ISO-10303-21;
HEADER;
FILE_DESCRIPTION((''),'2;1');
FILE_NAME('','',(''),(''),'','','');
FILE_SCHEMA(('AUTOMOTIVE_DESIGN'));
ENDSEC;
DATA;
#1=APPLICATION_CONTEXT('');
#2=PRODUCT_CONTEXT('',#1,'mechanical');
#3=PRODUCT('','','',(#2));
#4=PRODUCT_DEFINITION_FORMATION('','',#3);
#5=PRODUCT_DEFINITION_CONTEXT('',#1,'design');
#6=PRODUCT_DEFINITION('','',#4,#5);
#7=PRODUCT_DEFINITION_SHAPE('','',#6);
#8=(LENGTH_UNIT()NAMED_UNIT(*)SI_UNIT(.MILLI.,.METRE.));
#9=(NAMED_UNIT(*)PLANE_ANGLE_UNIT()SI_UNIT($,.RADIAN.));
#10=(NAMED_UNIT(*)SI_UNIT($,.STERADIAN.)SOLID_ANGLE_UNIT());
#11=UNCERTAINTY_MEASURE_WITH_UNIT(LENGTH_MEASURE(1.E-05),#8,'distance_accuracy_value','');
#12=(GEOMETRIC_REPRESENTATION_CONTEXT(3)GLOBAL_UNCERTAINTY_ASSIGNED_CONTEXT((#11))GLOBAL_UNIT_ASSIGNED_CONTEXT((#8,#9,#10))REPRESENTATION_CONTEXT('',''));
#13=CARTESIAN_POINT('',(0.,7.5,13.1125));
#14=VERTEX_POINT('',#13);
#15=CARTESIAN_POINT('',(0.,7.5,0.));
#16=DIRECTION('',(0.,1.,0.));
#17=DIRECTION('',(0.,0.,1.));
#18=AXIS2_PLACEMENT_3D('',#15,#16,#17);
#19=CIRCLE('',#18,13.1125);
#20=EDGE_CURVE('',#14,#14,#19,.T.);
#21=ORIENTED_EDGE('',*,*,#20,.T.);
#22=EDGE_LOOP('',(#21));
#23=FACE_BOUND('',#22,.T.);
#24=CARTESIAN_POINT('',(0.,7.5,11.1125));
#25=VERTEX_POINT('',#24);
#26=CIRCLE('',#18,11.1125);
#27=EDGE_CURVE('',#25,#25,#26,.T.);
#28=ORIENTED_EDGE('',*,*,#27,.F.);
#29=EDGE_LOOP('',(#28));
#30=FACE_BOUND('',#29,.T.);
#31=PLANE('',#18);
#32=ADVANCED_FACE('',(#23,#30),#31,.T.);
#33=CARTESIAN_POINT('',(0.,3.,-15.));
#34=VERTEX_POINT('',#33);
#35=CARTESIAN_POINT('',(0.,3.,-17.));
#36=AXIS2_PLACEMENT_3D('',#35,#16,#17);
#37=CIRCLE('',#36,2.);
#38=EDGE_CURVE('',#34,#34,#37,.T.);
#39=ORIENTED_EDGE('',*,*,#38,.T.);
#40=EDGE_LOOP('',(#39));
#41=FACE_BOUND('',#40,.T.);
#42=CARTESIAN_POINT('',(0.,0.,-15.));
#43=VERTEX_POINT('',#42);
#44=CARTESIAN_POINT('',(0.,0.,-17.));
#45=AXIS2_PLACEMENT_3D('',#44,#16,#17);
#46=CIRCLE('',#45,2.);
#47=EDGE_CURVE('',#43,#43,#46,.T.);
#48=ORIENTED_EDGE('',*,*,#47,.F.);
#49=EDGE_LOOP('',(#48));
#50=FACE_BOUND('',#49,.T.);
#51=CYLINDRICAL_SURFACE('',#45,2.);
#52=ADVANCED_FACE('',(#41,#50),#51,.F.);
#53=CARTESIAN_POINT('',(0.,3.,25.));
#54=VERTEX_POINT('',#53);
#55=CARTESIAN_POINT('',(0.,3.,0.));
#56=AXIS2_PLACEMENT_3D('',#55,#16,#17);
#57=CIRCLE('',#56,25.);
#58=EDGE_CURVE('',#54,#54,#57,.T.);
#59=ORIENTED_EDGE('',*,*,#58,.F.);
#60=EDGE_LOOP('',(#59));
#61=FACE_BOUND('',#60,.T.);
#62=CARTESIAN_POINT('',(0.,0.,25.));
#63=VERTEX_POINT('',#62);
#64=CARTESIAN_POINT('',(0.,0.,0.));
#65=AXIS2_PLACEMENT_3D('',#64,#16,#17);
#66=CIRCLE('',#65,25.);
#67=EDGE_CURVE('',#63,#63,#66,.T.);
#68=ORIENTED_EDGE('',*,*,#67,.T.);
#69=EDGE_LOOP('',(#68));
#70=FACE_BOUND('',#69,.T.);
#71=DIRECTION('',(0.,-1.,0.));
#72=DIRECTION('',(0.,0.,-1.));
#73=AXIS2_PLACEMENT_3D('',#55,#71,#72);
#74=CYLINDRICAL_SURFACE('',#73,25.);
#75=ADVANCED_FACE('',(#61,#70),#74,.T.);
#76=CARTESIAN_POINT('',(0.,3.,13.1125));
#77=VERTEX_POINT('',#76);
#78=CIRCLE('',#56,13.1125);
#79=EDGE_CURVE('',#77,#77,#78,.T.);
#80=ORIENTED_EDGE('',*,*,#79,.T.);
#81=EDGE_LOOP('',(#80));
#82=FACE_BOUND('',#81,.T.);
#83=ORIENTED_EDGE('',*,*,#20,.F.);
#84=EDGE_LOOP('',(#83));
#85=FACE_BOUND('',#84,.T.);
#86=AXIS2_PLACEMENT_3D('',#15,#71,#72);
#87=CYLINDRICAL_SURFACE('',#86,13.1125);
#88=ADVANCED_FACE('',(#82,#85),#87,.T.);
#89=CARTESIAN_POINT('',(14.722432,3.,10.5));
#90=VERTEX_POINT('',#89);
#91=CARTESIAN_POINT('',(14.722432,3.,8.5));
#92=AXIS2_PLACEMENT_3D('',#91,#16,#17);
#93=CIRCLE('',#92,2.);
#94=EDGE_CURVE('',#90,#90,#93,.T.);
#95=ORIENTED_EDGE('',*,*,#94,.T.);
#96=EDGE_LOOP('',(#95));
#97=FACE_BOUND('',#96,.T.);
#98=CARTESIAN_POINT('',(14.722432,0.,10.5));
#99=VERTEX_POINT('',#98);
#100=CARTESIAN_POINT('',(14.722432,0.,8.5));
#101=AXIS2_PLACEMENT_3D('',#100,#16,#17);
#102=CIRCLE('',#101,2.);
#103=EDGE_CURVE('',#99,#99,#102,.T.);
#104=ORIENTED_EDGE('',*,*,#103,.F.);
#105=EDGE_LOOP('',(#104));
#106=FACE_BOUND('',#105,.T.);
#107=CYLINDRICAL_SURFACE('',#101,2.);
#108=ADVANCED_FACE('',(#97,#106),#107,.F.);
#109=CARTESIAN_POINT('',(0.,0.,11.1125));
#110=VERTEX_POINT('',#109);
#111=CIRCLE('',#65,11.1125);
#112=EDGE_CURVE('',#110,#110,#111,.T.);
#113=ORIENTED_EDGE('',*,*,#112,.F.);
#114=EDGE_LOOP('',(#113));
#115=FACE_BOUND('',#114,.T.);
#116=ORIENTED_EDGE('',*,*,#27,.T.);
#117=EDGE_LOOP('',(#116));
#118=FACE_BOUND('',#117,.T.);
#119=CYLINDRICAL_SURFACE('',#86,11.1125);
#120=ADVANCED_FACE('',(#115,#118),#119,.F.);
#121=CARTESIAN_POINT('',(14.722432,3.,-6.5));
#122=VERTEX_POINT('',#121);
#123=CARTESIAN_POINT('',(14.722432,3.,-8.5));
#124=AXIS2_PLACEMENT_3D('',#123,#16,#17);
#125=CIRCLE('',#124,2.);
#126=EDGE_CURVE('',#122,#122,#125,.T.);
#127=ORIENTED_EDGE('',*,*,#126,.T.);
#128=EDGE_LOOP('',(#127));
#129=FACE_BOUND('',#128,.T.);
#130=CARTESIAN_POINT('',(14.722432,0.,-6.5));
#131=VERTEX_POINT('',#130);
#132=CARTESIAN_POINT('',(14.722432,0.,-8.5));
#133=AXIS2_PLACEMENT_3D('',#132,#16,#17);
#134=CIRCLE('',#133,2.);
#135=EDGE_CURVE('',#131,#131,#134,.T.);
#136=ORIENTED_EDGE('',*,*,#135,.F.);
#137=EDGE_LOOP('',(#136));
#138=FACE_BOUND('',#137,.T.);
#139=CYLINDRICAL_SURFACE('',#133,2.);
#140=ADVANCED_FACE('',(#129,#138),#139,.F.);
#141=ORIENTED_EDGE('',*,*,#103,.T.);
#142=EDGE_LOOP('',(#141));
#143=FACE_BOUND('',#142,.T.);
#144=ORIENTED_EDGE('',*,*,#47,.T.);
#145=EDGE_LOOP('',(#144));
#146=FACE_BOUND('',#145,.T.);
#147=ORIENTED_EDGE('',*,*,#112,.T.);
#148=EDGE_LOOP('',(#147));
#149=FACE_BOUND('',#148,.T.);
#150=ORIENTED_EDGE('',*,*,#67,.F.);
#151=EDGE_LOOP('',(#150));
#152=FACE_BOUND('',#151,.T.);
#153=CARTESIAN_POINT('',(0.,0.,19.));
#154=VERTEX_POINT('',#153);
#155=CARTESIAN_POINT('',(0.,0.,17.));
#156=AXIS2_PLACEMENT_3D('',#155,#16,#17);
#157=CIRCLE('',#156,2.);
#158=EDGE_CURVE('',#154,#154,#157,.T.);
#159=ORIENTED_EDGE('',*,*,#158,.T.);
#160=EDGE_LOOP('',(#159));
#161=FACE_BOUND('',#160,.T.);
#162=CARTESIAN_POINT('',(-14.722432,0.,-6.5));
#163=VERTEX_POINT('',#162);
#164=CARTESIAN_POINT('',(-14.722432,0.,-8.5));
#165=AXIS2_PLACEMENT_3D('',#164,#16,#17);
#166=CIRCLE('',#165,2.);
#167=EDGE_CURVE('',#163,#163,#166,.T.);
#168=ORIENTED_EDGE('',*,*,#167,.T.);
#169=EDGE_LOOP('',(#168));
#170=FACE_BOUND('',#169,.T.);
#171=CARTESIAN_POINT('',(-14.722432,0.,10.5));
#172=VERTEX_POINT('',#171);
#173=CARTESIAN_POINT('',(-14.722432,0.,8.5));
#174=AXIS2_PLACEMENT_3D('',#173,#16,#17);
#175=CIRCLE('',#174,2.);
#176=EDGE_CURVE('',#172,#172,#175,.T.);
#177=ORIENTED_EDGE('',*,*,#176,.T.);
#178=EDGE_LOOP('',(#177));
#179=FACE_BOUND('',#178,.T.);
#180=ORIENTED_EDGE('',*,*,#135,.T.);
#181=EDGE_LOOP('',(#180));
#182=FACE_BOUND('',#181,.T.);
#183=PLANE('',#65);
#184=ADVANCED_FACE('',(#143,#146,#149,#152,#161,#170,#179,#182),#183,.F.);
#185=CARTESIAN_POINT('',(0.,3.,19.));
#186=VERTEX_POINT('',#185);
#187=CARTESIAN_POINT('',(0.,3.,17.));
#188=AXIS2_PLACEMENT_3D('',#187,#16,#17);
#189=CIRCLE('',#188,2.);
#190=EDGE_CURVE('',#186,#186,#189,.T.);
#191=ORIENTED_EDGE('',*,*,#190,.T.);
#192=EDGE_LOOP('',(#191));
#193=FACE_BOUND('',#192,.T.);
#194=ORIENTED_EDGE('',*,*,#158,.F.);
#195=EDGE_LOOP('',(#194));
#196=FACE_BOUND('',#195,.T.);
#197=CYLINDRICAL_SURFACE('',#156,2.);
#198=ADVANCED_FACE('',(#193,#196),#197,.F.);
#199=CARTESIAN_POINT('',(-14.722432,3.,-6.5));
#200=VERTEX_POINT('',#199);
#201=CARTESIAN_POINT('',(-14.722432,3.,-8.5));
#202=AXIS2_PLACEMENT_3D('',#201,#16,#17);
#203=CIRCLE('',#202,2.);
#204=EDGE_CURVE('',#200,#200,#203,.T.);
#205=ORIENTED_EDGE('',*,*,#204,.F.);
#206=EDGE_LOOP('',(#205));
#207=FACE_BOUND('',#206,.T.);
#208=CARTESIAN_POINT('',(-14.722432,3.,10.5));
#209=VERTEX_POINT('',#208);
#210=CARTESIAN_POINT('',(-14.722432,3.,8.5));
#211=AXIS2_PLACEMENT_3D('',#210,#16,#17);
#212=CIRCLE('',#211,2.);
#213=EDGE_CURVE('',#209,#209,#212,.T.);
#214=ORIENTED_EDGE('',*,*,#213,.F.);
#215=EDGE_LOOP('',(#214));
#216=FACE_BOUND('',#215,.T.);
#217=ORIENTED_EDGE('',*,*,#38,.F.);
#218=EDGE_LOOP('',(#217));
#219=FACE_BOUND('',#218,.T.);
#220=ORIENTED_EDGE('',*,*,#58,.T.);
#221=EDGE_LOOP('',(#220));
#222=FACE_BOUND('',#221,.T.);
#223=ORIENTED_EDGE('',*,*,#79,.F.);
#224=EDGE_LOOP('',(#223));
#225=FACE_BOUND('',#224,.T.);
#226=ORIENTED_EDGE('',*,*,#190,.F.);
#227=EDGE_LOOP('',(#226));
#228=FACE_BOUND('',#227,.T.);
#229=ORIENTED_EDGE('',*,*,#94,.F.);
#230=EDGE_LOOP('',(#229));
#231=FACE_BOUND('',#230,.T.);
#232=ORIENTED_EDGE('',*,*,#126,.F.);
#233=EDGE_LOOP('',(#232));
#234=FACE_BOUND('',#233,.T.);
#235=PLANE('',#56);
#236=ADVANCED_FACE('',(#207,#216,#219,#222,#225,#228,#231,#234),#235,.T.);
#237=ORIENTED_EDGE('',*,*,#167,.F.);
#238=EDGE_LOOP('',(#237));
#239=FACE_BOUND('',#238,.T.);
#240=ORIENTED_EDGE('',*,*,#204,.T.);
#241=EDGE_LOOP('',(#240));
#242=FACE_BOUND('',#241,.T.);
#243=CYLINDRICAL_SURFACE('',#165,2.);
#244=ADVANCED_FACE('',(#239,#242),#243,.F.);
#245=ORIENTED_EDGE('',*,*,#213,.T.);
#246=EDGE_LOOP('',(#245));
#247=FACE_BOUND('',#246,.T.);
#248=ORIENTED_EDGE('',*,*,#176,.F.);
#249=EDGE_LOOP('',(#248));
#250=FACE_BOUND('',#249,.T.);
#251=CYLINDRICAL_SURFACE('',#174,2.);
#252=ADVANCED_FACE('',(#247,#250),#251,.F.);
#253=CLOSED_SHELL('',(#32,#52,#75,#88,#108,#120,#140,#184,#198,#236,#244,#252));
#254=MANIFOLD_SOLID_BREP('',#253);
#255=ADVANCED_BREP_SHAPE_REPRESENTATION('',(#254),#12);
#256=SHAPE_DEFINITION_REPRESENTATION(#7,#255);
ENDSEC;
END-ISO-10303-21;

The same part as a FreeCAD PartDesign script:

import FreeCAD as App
import Part
import Sketcher

V = App.Vector

doc = App.newDocument("Part")
body = doc.addObject("PartDesign::Body", "Body")

# Sketch on XZ plane
sketch1 = body.newObject("Sketcher::SketchObject", "Sketch")
sketch1.AttachmentSupport = (doc.getObject("XZ_Plane"), [""])
sketch1.MapMode = "FlatFace"
sketch1.addGeometry(Part.Circle(V(0, 0, 0), V(0, 0, 1), 25), False)
sketch1.addGeometry(Part.Circle(V(0, 0, 0), V(0, 0, 1), 4.7625), False)
sketch1.addConstraint(Sketcher.Constraint("Coincident", 0, 3, -1, 1))
sketch1.addConstraint(Sketcher.Constraint("Coincident", 1, 3, -1, 1))
sketch1.addConstraint(Sketcher.Constraint("Diameter", 0, 50.0))
sketch1.addConstraint(Sketcher.Constraint("Diameter", 1, 9.525))
pad1 = body.newObject("PartDesign::Pad", "Pad")
pad1.Profile = sketch1
pad1.Length = 3
pad1.Reversed = True

# Sketch on XZ plane
sketch2 = body.newObject("Sketcher::SketchObject", "Sketch001")
sketch2.AttachmentSupport = (doc.getObject("XZ_Plane"), [""])
sketch2.MapMode = "FlatFace"
sketch2.AttachmentOffset = App.Placement(V(0, 0, -3), App.Rotation())
sketch2.addGeometry(Part.Circle(V(0, -17, 0), V(0, 0, 1), 2), False)
sketch2.addGeometry(Part.Circle(V(14.722432, -8.5, 0), V(0, 0, 1), 2), False)
sketch2.addGeometry(Part.Circle(V(14.722432, 8.5, 0), V(0, 0, 1), 2), False)
sketch2.addGeometry(Part.Circle(V(0, 17, 0), V(0, 0, 1), 2), False)
sketch2.addGeometry(Part.Circle(V(-14.722432, 8.5, 0), V(0, 0, 1), 2), False)
sketch2.addGeometry(Part.Circle(V(-14.722432, -8.5, 0), V(0, 0, 1), 2), False)
sketch2.addConstraint(Sketcher.Constraint("Equal", 0, 1))
sketch2.addConstraint(Sketcher.Constraint("Equal", 1, 2))
sketch2.addConstraint(Sketcher.Constraint("Equal", 2, 3))
sketch2.addConstraint(Sketcher.Constraint("Equal", 3, 4))
sketch2.addConstraint(Sketcher.Constraint("Equal", 4, 5))
sketch2.addConstraint(Sketcher.Constraint("Symmetric", 0, 3, 3, 3, -1, 1))
sketch2.addConstraint(Sketcher.Constraint("Symmetric", 1, 3, 4, 3, -1, 1))
sketch2.addConstraint(Sketcher.Constraint("Symmetric", 2, 3, 5, 3, -1, 1))
sketch2.addConstraint(Sketcher.Constraint("Symmetric", 2, 3, 4, 3, -2))
sketch2.addConstraint(Sketcher.Constraint("PointOnObject", 0, 3, -2))
sketch2.addConstraint(Sketcher.Constraint("Diameter", 0, 4.0))
sketch2.addConstraint(Sketcher.Constraint("DistanceY", 0, 3, -1, 1, 17.0))
sketch2.addConstraint(Sketcher.Constraint("DistanceY", 1, 3, 2, 3, 17.0))
sketch2.addConstraint(Sketcher.Constraint("DistanceX", -1, 1, 1, 3, 14.722432))
pocket1 = body.newObject("PartDesign::Pocket", "Pocket")
pocket1.Profile = sketch2
pocket1.Type = "ThroughAll"
pocket1.Reversed = True

# Sketch on XZ plane
sketch3 = body.newObject("Sketcher::SketchObject", "Sketch002")
sketch3.AttachmentSupport = (doc.getObject("XZ_Plane"), [""])
sketch3.MapMode = "FlatFace"
sketch3.AttachmentOffset = App.Placement(V(0, 0, -3), App.Rotation())
sketch3.addGeometry(Part.Circle(V(0, 0, 0), V(0, 0, 1), 13.1125), False)
sketch3.addGeometry(Part.Circle(V(0, 0, 0), V(0, 0, 1), 11.1125), False)
sketch3.addConstraint(Sketcher.Constraint("Coincident", 0, 3, -1, 1))
sketch3.addConstraint(Sketcher.Constraint("Coincident", 1, 3, -1, 1))
sketch3.addConstraint(Sketcher.Constraint("Diameter", 0, 26.225))
sketch3.addConstraint(Sketcher.Constraint("Diameter", 1, 22.225))
pad2 = body.newObject("PartDesign::Pad", "Pad001")
pad2.Profile = sketch3
pad2.Length = 4.5
pad2.Reversed = True

# Sketch on XZ plane
sketch4 = body.newObject("Sketcher::SketchObject", "Sketch003")
sketch4.AttachmentSupport = (doc.getObject("XZ_Plane"), [""])
sketch4.MapMode = "FlatFace"
sketch4.AttachmentOffset = App.Placement(V(0, 0, -3), App.Rotation())
sketch4.addGeometry(Part.Circle(V(0, 0, 0), V(0, 0, 1), 11.1125), False)
sketch4.addGeometry(Part.Circle(V(0, 0, 0), V(0, 0, 1), 4.7625), False)
sketch4.addConstraint(Sketcher.Constraint("Coincident", 0, 3, -1, 1))
sketch4.addConstraint(Sketcher.Constraint("Coincident", 1, 3, -1, 1))
sketch4.addConstraint(Sketcher.Constraint("Diameter", 0, 22.225))
sketch4.addConstraint(Sketcher.Constraint("Diameter", 1, 9.525))
pocket2 = body.newObject("PartDesign::Pocket", "Pocket001")
pocket2.Profile = sketch4
pocket2.Type = "ThroughAll"
pocket2.Reversed = True

doc.recompute()
